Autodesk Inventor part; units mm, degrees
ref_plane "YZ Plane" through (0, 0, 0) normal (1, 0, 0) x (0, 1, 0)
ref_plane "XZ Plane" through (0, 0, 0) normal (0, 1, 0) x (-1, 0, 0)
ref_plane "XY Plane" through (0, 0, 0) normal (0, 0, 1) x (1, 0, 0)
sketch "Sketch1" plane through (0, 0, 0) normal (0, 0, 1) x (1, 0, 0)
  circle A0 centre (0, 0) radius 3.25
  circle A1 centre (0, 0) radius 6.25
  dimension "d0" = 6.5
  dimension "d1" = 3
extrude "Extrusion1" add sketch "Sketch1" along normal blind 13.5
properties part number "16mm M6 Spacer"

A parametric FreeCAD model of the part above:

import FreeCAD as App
import Part
import Sketcher
from FreeCAD import Vector
Q = App.Units.Quantity

doc = App.newDocument("Part")
params = doc.addObject("Spreadsheet::Sheet", "Params")
for row, (alias, value) in enumerate([
    ("sketch1_diameter", "6.5 mm"),
    ("sketch1_diameter2", "12.5 mm"),
    ("pad1_length", "13.5 mm"),
], start=1):
    params.set(f"A{row}", alias)
    params.set(f"B{row}", "=" + value)
    params.setAlias(f"B{row}", alias)

body = doc.addObject("PartDesign::Body", "Body")

sketch1 = doc.addObject("Sketcher::SketchObject", "Sketch")
body.addObject(sketch1)
sketch1.AttachmentSupport = (doc.XY_Plane, [""])
sketch1.MapMode = "FlatFace"
sketch1.addGeometry([
    Part.Circle(Vector(0, 0, 0), Vector(0, 0, 1), 6.25),
    Part.Circle(Vector(0, 0, 0), Vector(0, 0, 1), 3.25),
], False)
sketch1.addConstraint([
    Sketcher.Constraint("Coincident", 0, 3, -1, 1),
    Sketcher.Constraint("Coincident", 1, 3, -1, 1),
    Sketcher.Constraint("Diameter", 1, Q("6.5 mm")),
    Sketcher.Constraint("Diameter", 0, Q("12.5 mm")),
])
sketch1.setExpression("Constraints[2]", "Params.sketch1_diameter")
sketch1.setExpression("Constraints[3]", "Params.sketch1_diameter2")
pad1 = doc.addObject("PartDesign::Pad", "Pad")
body.addObject(pad1)
pad1.Profile = sketch1
pad1.setExpression("Length", "Params.pad1_length")

doc.recompute()
